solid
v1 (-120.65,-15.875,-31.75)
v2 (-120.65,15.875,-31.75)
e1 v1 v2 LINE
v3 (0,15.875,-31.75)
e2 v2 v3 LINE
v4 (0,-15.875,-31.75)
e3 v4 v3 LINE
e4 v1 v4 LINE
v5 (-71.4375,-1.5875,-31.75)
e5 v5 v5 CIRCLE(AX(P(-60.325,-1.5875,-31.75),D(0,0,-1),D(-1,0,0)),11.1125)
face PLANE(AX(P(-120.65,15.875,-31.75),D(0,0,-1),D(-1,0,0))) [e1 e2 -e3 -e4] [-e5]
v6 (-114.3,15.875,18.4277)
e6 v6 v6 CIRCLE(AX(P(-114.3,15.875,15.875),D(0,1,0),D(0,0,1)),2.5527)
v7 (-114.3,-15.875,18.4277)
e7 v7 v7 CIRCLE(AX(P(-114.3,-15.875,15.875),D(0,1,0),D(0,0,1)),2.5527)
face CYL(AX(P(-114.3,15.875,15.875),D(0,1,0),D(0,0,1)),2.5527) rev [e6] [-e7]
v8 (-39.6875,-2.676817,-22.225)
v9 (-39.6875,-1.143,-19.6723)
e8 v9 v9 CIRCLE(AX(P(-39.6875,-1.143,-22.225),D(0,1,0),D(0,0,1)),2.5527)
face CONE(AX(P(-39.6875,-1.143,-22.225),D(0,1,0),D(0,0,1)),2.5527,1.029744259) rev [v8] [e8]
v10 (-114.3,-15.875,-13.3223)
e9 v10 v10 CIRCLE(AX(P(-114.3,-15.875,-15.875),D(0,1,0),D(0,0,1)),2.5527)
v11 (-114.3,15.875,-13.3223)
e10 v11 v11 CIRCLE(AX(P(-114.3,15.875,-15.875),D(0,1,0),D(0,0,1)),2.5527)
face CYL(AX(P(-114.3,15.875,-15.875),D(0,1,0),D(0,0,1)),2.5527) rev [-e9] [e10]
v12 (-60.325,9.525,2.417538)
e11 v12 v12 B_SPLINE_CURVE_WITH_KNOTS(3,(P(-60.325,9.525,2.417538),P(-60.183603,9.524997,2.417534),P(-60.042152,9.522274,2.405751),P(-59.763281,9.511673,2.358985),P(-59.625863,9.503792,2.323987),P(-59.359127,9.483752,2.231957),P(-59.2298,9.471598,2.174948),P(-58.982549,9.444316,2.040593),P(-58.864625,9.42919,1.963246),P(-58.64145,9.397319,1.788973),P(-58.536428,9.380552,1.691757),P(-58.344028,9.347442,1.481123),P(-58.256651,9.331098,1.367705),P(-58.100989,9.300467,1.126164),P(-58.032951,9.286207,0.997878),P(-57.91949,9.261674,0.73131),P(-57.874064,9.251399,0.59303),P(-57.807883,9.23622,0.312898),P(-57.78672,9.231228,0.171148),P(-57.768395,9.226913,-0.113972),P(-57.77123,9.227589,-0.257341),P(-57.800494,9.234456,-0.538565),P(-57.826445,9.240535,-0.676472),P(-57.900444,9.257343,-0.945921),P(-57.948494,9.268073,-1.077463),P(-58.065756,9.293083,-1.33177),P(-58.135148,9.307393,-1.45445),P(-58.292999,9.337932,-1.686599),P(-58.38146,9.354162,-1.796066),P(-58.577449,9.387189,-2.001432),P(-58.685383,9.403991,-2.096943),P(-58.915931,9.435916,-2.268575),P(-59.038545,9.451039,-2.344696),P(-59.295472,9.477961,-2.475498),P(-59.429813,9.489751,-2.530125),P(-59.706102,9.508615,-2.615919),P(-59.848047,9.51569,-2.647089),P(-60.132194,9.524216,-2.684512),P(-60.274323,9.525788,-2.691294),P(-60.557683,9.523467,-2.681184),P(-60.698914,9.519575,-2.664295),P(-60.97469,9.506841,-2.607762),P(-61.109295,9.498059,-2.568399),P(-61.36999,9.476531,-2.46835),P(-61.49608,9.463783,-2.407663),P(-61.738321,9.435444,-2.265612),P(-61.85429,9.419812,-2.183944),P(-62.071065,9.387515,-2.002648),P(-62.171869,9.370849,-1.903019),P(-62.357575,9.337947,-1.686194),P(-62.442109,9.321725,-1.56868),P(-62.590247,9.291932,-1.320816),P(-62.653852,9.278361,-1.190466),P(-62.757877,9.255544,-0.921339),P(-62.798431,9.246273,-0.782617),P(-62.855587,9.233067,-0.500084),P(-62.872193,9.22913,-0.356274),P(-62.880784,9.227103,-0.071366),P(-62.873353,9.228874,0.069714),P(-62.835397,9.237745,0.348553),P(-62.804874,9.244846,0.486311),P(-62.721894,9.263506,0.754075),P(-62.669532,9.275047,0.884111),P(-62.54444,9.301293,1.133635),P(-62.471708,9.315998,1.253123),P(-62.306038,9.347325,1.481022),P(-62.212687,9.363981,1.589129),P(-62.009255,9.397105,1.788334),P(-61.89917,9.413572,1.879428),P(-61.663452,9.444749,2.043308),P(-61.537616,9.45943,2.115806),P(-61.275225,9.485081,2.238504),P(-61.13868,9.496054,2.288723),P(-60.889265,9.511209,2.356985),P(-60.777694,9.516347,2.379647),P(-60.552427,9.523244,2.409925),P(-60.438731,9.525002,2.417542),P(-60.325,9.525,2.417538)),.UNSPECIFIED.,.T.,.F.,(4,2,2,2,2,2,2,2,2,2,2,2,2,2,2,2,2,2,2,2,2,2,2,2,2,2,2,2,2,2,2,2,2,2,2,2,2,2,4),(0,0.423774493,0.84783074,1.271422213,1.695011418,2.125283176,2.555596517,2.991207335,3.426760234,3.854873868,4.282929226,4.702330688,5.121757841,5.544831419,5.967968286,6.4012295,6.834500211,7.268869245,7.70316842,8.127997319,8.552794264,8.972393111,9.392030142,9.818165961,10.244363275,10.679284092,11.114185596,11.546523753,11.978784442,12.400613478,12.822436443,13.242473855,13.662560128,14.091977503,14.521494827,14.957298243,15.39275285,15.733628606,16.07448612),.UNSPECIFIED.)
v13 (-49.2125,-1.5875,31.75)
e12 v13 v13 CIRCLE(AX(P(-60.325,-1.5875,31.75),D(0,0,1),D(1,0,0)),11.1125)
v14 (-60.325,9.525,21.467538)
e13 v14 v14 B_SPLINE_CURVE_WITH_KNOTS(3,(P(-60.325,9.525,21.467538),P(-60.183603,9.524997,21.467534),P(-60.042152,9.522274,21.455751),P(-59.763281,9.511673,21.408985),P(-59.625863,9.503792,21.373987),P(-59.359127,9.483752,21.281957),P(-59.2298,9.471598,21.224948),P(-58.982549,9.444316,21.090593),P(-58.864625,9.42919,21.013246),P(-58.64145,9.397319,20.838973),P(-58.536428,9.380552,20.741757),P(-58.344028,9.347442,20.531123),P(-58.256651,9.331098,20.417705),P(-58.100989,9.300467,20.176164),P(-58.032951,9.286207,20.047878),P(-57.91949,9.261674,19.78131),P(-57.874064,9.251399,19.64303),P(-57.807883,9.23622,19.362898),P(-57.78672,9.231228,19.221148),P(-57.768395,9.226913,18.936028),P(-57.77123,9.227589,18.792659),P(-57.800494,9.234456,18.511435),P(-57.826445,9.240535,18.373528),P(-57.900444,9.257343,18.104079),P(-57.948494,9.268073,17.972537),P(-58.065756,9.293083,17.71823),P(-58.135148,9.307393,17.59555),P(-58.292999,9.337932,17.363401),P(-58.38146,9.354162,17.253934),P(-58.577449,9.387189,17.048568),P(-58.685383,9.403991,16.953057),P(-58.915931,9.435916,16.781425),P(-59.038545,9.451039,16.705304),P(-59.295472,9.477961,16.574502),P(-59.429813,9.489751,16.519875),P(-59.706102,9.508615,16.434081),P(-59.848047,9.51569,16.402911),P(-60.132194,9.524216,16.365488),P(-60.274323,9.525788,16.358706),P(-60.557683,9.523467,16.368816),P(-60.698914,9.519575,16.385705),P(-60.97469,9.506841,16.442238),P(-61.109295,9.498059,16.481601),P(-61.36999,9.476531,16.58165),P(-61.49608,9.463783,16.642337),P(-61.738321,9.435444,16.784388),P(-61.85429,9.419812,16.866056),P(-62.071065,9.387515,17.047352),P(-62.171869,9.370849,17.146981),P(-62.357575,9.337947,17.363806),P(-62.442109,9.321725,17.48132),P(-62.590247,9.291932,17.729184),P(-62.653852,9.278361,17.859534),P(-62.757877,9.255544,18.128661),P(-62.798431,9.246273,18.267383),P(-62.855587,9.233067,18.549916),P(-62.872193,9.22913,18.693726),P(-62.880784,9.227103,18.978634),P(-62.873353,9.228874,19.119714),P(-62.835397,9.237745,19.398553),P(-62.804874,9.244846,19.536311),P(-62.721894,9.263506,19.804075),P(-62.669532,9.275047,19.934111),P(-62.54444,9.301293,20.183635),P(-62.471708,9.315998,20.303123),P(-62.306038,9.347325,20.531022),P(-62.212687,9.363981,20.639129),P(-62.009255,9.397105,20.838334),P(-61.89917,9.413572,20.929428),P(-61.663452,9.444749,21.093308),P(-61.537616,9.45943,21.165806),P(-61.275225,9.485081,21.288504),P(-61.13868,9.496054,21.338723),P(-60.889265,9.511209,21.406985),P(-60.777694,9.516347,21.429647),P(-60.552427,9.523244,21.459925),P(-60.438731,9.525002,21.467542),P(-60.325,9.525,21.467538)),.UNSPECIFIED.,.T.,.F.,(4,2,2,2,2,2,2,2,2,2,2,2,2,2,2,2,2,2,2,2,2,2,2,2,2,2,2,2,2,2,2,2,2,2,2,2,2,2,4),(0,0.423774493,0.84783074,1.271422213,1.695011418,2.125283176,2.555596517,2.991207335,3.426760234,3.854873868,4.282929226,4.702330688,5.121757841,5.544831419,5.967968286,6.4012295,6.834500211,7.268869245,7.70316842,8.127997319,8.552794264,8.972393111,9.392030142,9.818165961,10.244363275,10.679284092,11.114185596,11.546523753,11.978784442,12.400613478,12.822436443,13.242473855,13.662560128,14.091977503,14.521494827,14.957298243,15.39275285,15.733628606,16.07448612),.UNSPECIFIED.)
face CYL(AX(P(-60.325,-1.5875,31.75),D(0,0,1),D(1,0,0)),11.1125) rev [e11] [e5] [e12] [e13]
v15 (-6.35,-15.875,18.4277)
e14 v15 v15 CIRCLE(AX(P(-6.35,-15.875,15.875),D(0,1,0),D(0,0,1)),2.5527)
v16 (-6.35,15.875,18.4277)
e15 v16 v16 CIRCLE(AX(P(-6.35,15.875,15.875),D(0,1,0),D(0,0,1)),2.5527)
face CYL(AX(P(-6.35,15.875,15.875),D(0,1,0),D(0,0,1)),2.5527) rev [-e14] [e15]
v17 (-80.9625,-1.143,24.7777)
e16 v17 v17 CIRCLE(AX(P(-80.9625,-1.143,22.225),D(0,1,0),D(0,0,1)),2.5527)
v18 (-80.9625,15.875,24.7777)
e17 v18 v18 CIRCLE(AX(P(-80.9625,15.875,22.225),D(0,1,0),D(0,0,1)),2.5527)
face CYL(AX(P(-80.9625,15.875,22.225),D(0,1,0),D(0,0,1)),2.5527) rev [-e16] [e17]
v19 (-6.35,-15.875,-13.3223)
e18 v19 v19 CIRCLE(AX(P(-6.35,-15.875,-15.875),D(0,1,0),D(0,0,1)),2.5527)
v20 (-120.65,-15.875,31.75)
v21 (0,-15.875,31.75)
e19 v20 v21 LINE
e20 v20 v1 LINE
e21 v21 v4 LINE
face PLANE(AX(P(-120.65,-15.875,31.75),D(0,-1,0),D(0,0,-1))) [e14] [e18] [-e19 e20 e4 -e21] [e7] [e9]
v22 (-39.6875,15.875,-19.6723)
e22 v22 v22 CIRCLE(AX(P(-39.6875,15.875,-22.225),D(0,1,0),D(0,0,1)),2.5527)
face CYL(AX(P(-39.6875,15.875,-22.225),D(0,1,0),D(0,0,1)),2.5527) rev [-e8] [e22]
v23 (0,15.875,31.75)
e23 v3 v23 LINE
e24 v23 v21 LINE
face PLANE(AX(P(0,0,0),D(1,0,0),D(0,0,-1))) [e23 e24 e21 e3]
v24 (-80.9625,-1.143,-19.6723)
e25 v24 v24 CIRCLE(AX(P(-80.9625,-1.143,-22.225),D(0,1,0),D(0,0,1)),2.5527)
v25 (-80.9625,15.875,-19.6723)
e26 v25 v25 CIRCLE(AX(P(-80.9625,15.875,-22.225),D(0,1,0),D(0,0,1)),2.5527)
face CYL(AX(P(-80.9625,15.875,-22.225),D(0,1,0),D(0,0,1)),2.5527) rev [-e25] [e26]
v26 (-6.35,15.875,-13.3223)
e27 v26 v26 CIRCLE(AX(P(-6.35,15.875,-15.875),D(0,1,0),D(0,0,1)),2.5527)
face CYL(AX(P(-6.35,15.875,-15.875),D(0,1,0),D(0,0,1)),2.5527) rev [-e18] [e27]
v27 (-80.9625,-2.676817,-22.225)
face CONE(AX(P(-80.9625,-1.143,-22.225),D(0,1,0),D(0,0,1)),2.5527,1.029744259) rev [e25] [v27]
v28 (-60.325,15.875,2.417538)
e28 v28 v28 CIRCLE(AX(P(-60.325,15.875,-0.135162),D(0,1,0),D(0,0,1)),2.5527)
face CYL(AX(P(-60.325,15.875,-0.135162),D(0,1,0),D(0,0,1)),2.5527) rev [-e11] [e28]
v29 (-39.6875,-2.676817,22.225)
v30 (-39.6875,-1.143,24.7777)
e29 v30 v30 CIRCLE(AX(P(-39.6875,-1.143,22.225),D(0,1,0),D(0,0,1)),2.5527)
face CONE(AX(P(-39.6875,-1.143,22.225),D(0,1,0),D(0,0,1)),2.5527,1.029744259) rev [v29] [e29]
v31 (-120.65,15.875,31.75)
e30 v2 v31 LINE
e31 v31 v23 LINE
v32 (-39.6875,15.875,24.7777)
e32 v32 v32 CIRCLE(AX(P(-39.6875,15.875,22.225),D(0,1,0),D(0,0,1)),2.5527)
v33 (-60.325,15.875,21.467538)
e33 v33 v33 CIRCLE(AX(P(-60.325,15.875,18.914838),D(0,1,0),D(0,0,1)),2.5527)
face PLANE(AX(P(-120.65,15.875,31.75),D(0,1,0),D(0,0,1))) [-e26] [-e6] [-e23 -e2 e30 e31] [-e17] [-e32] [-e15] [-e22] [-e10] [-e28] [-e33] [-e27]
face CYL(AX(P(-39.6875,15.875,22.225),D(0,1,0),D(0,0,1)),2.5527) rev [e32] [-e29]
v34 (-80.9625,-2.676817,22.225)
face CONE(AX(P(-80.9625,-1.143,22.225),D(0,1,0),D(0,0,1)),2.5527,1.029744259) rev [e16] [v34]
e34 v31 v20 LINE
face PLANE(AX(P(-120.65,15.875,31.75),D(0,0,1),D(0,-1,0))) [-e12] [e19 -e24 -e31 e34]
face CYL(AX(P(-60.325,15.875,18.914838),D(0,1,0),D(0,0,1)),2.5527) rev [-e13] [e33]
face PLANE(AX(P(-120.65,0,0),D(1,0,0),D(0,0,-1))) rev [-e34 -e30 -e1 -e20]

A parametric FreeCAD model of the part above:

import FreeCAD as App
import Part
import Sketcher

V = App.Vector
Q = App.Units.Quantity


def add_polygon(sketch, points):
    """Adds a closed chain of lines whose ends are joined by coincident constraints."""
    first, n = sketch.GeometryCount, len(points)
    for a, b in zip(points, points[1:] + points[:1]):
        sketch.addGeometry(Part.LineSegment(App.Vector(*a, 0), App.Vector(*b, 0)), False)
    for i in range(n):
        sketch.addConstraint(Sketcher.Constraint("Coincident", first + i, 2, first + (i + 1) % n, 1))

doc = App.newDocument("Part")
body = doc.addObject("PartDesign::Body", "Body")

sketch1 = body.newObject("Sketcher::SketchObject", "Sketch")
sketch1.AttachmentSupport = (doc.getObject("YZ_Plane"), [""])
sketch1.MapMode = "FlatFace"
add_polygon(sketch1, [(16, 32), (-16, 32), (-16, -32), (16, -32)])
sketch1.addConstraint(Sketcher.Constraint("Horizontal", 0))
sketch1.addConstraint(Sketcher.Constraint("Vertical", 1))
sketch1.addConstraint(Sketcher.Constraint("Horizontal", 2))
sketch1.addConstraint(Sketcher.Constraint("Vertical", 3))
sketch1.addConstraint(Sketcher.Constraint("Symmetric", 0, 2, 2, 2, -1, 1))
sketch1.addConstraint(Sketcher.Constraint("DistanceY", 1, 2, 1, 1, Q("2.5 in")))
sketch1.addConstraint(Sketcher.Constraint("DistanceX", 0, 2, 0, 1, Q("1.25 in")))
pad1 = body.newObject("PartDesign::Pad", "Pad")
pad1.Profile = sketch1
pad1.Length = Q("4.75 in")
pad1.Reversed = True

sketch2 = body.newObject("Sketcher::SketchObject", "Sketch001")
sketch2.AttachmentSupport = (doc.getObject("XY_Plane"), [""])
sketch2.MapMode = "FlatFace"
sketch2.AttachmentOffset = App.Placement(V(0, 0, 1.25 * 25.4), App.Rotation())
sketch2.addGeometry(Part.Circle(V(-60, -2, 0), V(0, 0, 1), 11), False)
sketch2.addConstraint(Sketcher.Constraint("Diameter", 0, Q("0.875 in")))
sketch2.addConstraint(Sketcher.Constraint("DistanceX", 0, 3, -1, 1, Q("2.375 in")))
sketch2.addConstraint(Sketcher.Constraint("DistanceY", 0, 3, -1, 1, Q("0.0625 in")))
doc.recompute()
hole = body.newObject("PartDesign::Hole", "Hole")
hole.Profile = sketch2
hole.ThreadType = "None"
hole.Diameter = Q("0.875 in")
hole.DepthType = "ThroughAll"

sketch3 = body.newObject("Sketcher::SketchObject", "Sketch002")
sketch3.AttachmentSupport = (doc.getObject("XZ_Plane"), [""])
sketch3.MapMode = "FlatFace"
sketch3.AttachmentOffset = App.Placement(V(0, 0, -0.625 * 25.4), App.Rotation())
sketch3.addGeometry(Part.Circle(V(-60.3, -0.1, 0), V(0, 0, 1), 2.6), False)
sketch3.addConstraint(Sketcher.Constraint("Diameter", 0, Q("0.201 in")))
sketch3.addConstraint(Sketcher.Constraint("DistanceX", 0, 3, -1, 1, Q("2.375 in")))
sketch3.addConstraint(Sketcher.Constraint("DistanceY", 0, 3, -1, 1, 0.135162))
pocket1 = body.newObject("PartDesign::Pocket", "Pocket")
pocket1.Profile = sketch3
pocket1.Length = 6.647169
pocket1.Reversed = True

sketch4 = body.newObject("Sketcher::SketchObject", "Sketch003")
sketch4.AttachmentSupport = (doc.getObject("XZ_Plane"), [""])
sketch4.MapMode = "FlatFace"
sketch4.AttachmentOffset = App.Placement(V(0, 0, -0.625 * 25.4), App.Rotation())
sketch4.addGeometry(Part.Circle(V(-60.3, 18.9, 0), V(0, 0, 1), 2.6), False)
sketch4.addConstraint(Sketcher.Constraint("Diameter", 0, Q("0.201 in")))
sketch4.addConstraint(Sketcher.Constraint("DistanceX", 0, 3, -1, 1, Q("2.375 in")))
sketch4.addConstraint(Sketcher.Constraint("DistanceY", -1, 1, 0, 3, 18.914838))
pocket2 = body.newObject("PartDesign::Pocket", "Pocket001")
pocket2.Profile = sketch4
pocket2.Length = 6.647169
pocket2.Reversed = True

sketch5 = body.newObject("Sketcher::SketchObject", "Sketch004")
sketch5.AttachmentSupport = (doc.getObject("XZ_Plane"), [""])
sketch5.MapMode = "FlatFace"
sketch5.AttachmentOffset = App.Placement(V(0, 0, -0.625 * 25.4), App.Rotation())
sketch5.addGeometry(Part.Circle(V(-114.3, -15.9, 0), V(0, 0, 1), 2.6), False)
sketch5.addGeometry(Part.Circle(V(-114.3, 15.9, 0), V(0, 0, 1), 2.6), False)
sketch5.addGeometry(Part.Circle(V(-6.3, 15.9, 0), V(0, 0, 1), 2.6), False)
sketch5.addGeometry(Part.Circle(V(-6.3, -15.9, 0), V(0, 0, 1), 2.6), False)
sketch5.addConstraint(Sketcher.Constraint("Equal", 0, 1))
sketch5.addConstraint(Sketcher.Constraint("Equal", 1, 2))
sketch5.addConstraint(Sketcher.Constraint("Equal", 2, 3))
sketch5.addConstraint(Sketcher.Constraint("Symmetric", 0, 3, 1, 3, -1))
sketch5.addConstraint(Sketcher.Constraint("Symmetric", 2, 3, 3, 3, -1))
sketch5.addConstraint(Sketcher.Constraint("Horizontal", 1, 3, 2, 3))
sketch5.addConstraint(Sketcher.Constraint("Diameter", 0, Q("0.201 in")))
sketch5.addConstraint(Sketcher.Constraint("DistanceX", 0, 3, -1, 1, Q("4.5 in")))
sketch5.addConstraint(Sketcher.Constraint("DistanceX", 2, 3, -1, 1, Q("0.25 in")))
sketch5.addConstraint(Sketcher.Constraint("DistanceY", 0, 3, 1, 3, Q("1.25 in")))
doc.recompute()
hole2 = body.newObject("PartDesign::Hole", "Hole001")
hole2.Profile = sketch5
hole2.ThreadType = "None"
hole2.Diameter = Q("0.201 in")
hole2.DepthType = "ThroughAll"
hole2.Reversed = True

sketch6 = body.newObject("Sketcher::SketchObject", "Sketch005")
sketch6.AttachmentSupport = (doc.getObject("XZ_Plane"), [""])
sketch6.MapMode = "FlatFace"
sketch6.AttachmentOffset = App.Placement(V(0, 0, -0.625 * 25.4), App.Rotation())
sketch6.addGeometry(Part.Circle(V(-81, -22.2, 0), V(0, 0, 1), 2.6), False)
sketch6.addGeometry(Part.Circle(V(-39.7, 22.2, 0), V(0, 0, 1), 2.6), False)
sketch6.addGeometry(Part.Circle(V(-81, 22.2, 0), V(0, 0, 1), 2.6), False)
sketch6.addGeometry(Part.Circle(V(-39.7, -22.2, 0), V(0, 0, 1), 2.6), False)
sketch6.addConstraint(Sketcher.Constraint("Equal", 0, 1))
sketch6.addConstraint(Sketcher.Constraint("Equal", 1, 2))
sketch6.addConstraint(Sketcher.Constraint("Equal", 2, 3))
sketch6.addConstraint(Sketcher.Constraint("Symmetric", 0, 3, 2, 3, -1))
sketch6.addConstraint(Sketcher.Constraint("Symmetric", 1, 3, 3, 3, -1))
sketch6.addConstraint(Sketcher.Constraint("Horizontal", 1, 3, 2, 3))
sketch6.addConstraint(Sketcher.Constraint("Diameter", 0, Q("0.201 in")))
sketch6.addConstraint(Sketcher.Constraint("DistanceY", 0, 3, 1, 3, Q("1.75 in")))
sketch6.addConstraint(Sketcher.Constraint("DistanceX", 0, 3, -1, 1, Q("3.1875 in")))
sketch6.addConstraint(Sketcher.Constraint("DistanceX", 1, 3, -1, 1, Q("1.5625 in")))
doc.recompute()
hole3 = body.newObject("PartDesign::Hole", "Hole002")
hole3.Profile = sketch6
hole3.ThreadType = "None"
hole3.Diameter = Q("0.201 in")
hole3.DepthType = "Dimension"
hole3.Depth = Q("0.67 in")
hole3.DrillPoint = "Angled"
hole3.DrillPointAngle = 118
hole3.Reversed = True

doc.recompute()
